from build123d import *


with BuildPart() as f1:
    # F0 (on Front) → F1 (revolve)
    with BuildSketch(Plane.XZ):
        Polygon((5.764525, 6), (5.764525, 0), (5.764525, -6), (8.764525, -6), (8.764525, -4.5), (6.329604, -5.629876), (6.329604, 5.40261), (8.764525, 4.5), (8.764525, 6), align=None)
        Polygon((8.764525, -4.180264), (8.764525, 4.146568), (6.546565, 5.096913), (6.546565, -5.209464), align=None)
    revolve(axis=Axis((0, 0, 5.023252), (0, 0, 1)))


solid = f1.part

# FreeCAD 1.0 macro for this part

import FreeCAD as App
import Part
import Sketcher

V = App.Vector
Q = App.Units.Quantity

doc = App.newDocument("Part")
body = doc.addObject("PartDesign::Body", "Body")
body.AllowCompound = True

# Sketch on XZ plane
sketch1 = body.newObject("Sketcher::SketchObject", "Sketch")
sketch1.AttachmentSupport = (doc.getObject("XZ_Plane"), [""])
sketch1.MapMode = "FlatFace"
sketch1.addGeometry([
    Part.LineSegment(V(5.8, 6, 0), V(5.8, -6, 0)),  # 0
    Part.LineSegment(V(5.8, -6, 0), V(8.8, -6, 0)),  # 1
    Part.LineSegment(V(8.8, -6, 0), V(8.8, -4.5, 0)),  # 2
    Part.LineSegment(V(8.8, -4.5, 0), V(6.3, -5.6, 0)),  # 3
    Part.LineSegment(V(6.3, -5.6, 0), V(6.3, 5.4, 0)),  # 4
    Part.LineSegment(V(6.3, 5.4, 0), V(8.8, 4.5, 0)),  # 5
    Part.LineSegment(V(8.8, 4.5, 0), V(8.8, 6, 0)),  # 6
    Part.LineSegment(V(8.8, 6, 0), V(5.8, 6, 0)),  # 7
    Part.LineSegment(V(8.8, -4.2, 0), V(8.8, 4.1, 0)),  # 8
    Part.LineSegment(V(8.8, 4.1, 0), V(6.5, 5.1, 0)),  # 9
    Part.LineSegment(V(6.5, 5.1, 0), V(6.5, -5.2, 0)),  # 10
    Part.LineSegment(V(6.5, -5.2, 0), V(8.8, -4.2, 0)),  # 11
], False)
sketch1.addConstraint([
    Sketcher.Constraint("Coincident", 0, 2, 1, 1),
    Sketcher.Constraint("Coincident", 1, 2, 2, 1),
    Sketcher.Constraint("Coincident", 2, 2, 3, 1),
    Sketcher.Constraint("Coincident", 3, 2, 4, 1),
    Sketcher.Constraint("Coincident", 4, 2, 5, 1),
    Sketcher.Constraint("Coincident", 5, 2, 6, 1),
    Sketcher.Constraint("Coincident", 6, 2, 7, 1),
    Sketcher.Constraint("Coincident", 7, 2, 0, 1),
    Sketcher.Constraint("Coincident", 8, 2, 9, 1),
    Sketcher.Constraint("Coincident", 9, 2, 10, 1),
    Sketcher.Constraint("Coincident", 10, 2, 11, 1),
    Sketcher.Constraint("Coincident", 11, 2, 8, 1),
    Sketcher.Constraint("Vertical", 0),
    Sketcher.Constraint("Horizontal", 1),
    Sketcher.Constraint("Vertical", 2),
    Sketcher.Constraint("Vertical", 4),
    Sketcher.Constraint("Vertical", 6),
    Sketcher.Constraint("Horizontal", 7),
    Sketcher.Constraint("Vertical", 8),
    Sketcher.Constraint("Vertical", 10),
    Sketcher.Constraint("Symmetric", 2, 2, 5, 2, -1),
    Sketcher.Constraint("Parallel", 3, 11),
    Sketcher.Constraint("Vertical", 6, 2, 8, 2),
    Sketcher.Constraint("Equal", 2, 6),
    Sketcher.Constraint("DistanceX", 1, 1, 1, 2, Q("3 mm")),
    Sketcher.Constraint("DistanceY", 0, 2, 0, 1, Q("12 mm")),
    Sketcher.Constraint("DistanceY", 2, 1, 2, 2, Q("1.5 mm")),
    Sketcher.Constraint("Distance", 3, Q("2.684299 mm")),
    Sketcher.Constraint("DistanceY", 10, 2, 11, 2, Q("1.0292 mm")),
    Sketcher.Constraint("DistanceY", 4, 1, 4, 2, Q("11.032486 mm")),
    Sketcher.Constraint("DistanceY", 8, 1, 8, 2, Q("8.326832 mm")),
    Sketcher.Constraint("DistanceY", 10, 2, 10, 1, Q("10.306377 mm")),
    Sketcher.Constraint("DistanceY", -1, 1, 4, 2, Q("5.40261 mm")),
    Sketcher.Constraint("DistanceY", -1, 1, 8, 2, Q("4.146568 mm")),
    Sketcher.Constraint("DistanceX", -1, 1, 0, 2, Q("5.764525 mm")),
])
revolution = body.newObject("PartDesign::Revolution", "Revolution")
revolution.Profile = sketch1
revolution.ReferenceAxis = (sketch1, ["V_Axis"])
revolution.Angle = 360

doc.recompute()
